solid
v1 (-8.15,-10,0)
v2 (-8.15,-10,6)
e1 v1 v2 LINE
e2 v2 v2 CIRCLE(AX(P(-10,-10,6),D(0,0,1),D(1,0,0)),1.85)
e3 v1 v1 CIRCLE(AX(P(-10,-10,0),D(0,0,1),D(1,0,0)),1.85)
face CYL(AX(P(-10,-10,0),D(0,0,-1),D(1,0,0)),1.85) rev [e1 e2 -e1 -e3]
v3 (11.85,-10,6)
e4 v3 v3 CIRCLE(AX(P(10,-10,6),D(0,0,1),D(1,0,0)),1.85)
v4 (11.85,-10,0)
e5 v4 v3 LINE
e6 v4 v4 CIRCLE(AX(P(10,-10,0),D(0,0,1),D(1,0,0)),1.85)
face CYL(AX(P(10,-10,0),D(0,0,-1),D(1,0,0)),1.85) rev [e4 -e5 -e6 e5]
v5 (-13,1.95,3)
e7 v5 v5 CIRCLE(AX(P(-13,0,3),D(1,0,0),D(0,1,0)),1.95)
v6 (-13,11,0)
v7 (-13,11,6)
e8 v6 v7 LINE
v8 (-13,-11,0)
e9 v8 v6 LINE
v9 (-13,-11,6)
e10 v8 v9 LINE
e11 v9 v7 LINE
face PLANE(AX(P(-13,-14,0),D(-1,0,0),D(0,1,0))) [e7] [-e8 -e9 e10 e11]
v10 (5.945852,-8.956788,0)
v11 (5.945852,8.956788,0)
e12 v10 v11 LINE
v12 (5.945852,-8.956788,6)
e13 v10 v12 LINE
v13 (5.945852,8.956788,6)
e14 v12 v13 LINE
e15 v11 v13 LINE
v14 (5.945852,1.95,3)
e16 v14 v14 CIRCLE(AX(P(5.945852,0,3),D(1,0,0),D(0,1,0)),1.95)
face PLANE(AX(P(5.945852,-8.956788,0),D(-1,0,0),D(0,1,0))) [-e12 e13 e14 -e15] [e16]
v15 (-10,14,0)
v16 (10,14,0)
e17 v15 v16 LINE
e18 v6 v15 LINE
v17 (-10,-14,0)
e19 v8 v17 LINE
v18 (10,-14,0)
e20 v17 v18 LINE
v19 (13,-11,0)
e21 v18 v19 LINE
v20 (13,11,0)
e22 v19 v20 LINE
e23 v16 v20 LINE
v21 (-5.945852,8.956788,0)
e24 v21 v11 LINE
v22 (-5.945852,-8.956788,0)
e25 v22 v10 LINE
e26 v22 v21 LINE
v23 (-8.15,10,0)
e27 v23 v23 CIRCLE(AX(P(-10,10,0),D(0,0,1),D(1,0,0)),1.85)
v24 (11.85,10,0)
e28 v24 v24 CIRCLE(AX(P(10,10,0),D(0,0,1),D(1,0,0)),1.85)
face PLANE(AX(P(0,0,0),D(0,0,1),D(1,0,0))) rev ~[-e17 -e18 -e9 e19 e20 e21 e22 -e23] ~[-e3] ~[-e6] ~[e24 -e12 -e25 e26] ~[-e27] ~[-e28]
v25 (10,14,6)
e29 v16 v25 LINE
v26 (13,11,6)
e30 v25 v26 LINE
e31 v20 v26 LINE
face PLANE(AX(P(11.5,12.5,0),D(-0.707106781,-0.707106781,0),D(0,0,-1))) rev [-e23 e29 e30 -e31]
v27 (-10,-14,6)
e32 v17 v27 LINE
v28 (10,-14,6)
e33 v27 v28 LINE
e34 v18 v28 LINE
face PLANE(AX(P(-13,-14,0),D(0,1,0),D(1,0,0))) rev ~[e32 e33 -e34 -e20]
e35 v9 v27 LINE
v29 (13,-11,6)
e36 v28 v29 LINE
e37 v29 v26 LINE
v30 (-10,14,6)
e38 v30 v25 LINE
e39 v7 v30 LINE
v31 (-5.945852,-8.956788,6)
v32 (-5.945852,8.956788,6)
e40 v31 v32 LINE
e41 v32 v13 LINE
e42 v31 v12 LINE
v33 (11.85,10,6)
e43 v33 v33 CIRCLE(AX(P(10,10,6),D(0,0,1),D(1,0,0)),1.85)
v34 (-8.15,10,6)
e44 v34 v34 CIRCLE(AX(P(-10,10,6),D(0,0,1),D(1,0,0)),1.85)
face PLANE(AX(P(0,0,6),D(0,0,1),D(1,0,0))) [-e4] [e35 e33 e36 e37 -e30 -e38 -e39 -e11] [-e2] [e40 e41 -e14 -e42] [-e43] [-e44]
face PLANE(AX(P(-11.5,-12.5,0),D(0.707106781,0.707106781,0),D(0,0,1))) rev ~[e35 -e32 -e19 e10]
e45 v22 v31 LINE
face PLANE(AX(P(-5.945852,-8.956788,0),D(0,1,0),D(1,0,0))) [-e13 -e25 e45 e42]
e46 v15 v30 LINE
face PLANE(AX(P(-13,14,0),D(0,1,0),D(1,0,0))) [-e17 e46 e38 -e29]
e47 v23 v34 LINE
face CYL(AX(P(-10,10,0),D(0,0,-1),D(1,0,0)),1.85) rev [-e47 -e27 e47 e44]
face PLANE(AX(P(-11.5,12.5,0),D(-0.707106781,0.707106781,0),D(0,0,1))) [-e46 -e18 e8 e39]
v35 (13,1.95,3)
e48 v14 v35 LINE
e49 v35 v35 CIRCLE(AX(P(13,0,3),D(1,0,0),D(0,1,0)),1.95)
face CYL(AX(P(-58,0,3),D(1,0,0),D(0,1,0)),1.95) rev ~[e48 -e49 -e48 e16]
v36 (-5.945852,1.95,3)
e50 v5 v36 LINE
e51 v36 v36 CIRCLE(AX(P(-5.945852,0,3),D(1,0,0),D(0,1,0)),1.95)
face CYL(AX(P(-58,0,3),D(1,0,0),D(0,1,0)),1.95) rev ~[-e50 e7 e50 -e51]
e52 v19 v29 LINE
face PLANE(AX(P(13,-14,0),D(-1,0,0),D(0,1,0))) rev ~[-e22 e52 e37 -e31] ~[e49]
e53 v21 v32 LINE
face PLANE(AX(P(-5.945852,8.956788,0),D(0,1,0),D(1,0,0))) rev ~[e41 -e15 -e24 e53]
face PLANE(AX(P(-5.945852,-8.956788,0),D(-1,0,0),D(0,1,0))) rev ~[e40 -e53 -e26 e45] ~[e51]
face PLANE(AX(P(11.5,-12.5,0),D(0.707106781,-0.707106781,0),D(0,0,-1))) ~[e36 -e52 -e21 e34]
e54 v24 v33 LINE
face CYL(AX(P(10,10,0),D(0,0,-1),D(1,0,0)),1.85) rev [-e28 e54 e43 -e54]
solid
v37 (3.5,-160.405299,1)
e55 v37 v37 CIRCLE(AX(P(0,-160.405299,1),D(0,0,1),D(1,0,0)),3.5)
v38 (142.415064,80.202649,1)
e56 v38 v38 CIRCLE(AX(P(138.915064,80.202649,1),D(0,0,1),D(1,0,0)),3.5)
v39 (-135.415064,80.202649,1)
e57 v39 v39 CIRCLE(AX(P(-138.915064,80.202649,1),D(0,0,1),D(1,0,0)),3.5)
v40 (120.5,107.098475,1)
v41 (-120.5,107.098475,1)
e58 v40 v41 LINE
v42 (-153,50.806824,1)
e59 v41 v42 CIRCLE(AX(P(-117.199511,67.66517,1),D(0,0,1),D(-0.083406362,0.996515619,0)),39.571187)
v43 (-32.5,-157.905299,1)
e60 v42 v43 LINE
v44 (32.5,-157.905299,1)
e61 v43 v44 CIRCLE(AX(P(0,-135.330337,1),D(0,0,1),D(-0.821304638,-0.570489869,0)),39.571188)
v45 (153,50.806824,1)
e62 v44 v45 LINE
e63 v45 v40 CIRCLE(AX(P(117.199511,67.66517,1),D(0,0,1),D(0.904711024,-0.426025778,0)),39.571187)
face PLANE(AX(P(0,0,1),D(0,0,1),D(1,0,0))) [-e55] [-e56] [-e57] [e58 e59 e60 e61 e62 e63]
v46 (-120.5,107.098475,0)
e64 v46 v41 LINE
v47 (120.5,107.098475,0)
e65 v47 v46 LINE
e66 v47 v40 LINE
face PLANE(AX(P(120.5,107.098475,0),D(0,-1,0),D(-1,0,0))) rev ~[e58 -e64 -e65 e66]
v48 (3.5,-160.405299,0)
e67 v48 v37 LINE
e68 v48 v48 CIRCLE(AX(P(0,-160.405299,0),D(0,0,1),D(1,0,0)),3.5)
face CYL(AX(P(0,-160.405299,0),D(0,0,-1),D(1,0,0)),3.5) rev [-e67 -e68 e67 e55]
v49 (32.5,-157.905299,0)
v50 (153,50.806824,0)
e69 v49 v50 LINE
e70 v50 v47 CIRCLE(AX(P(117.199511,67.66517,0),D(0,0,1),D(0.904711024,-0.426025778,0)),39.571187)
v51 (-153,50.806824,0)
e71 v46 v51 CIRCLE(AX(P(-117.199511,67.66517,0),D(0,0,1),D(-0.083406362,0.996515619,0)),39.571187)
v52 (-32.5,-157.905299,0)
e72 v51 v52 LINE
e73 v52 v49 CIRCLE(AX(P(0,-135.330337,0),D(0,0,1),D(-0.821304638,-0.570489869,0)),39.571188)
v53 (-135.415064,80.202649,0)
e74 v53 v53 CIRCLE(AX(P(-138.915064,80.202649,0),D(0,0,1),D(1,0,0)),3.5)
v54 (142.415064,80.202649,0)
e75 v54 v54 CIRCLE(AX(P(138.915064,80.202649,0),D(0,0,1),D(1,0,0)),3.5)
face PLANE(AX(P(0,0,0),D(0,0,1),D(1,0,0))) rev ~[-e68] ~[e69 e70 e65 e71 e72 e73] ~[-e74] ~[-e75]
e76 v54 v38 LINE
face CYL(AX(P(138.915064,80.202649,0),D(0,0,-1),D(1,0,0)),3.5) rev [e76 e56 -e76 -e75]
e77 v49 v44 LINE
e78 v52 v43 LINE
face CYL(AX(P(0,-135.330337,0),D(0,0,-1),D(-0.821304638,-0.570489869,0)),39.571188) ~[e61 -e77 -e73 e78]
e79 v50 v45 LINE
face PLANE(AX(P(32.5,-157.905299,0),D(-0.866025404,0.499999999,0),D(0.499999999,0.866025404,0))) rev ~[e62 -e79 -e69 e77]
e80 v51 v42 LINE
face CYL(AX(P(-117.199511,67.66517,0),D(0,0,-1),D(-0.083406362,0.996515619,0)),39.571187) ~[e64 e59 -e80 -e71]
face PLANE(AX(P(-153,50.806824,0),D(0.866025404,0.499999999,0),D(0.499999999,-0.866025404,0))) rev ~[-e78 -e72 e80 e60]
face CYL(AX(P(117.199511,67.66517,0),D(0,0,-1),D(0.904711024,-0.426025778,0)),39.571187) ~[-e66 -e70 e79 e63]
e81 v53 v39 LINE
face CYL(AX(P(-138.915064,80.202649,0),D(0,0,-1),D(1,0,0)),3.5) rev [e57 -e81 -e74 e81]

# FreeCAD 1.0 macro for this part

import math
import FreeCAD as App
import Part
import Sketcher
Q = App.Units.Quantity


def edges_at(feature, points):
    """Names of the edges that pass closest to the given points."""
    edges = feature.Shape.Edges
    near = lambda p: min(range(len(edges)), key=lambda i: edges[i].distToShape(Part.Vertex(*p))[0])
    return sorted({f"Edge{near(p) + 1}" for p in points})


def add_polygon(sketch, points):
    """Adds a closed chain of lines whose ends are joined by coincident constraints."""
    first, n = sketch.GeometryCount, len(points)
    for a, b in zip(points, points[1:] + points[:1]):
        sketch.addGeometry(Part.LineSegment(App.Vector(*a, 0), App.Vector(*b, 0)), False)
    for i in range(n):
        sketch.addConstraint(Sketcher.Constraint("Coincident", first + i, 2, first + (i + 1) % n, 1))

doc = App.newDocument("Part")
body = doc.addObject("PartDesign::Body", "Body")

# Sketch on XY plane
sketch1 = body.newObject("Sketcher::SketchObject", "Sketch")
sketch1.AttachmentSupport = (doc.getObject("XY_Plane"), [""])
sketch1.MapMode = "FlatFace"
sketch1.addGeometry(Part.LineSegment(App.Vector(120.5, 107.098475, 0), App.Vector(-120.5, 107.098475, 0)), False)
sketch1.addGeometry(Part.ArcOfCircle(Part.Circle(App.Vector(-117.199511, 67.66517, 0), App.Vector(0, 0, 1), 39.571187), math.radians(94.784391), math.radians(205.215609)), False)
sketch1.addGeometry(Part.LineSegment(App.Vector(-153, 50.806824, 0), App.Vector(-32.5, -157.905299, 0)), False)
sketch1.addGeometry(Part.ArcOfCircle(Part.Circle(App.Vector(0, -135.330337, 0), App.Vector(0, 0, 1), 39.571188), math.radians(-145.215607), math.radians(-34.784393)), False)
sketch1.addGeometry(Part.LineSegment(App.Vector(32.5, -157.905299, 0), App.Vector(153, 50.806824, 0)), False)
sketch1.addGeometry(Part.ArcOfCircle(Part.Circle(App.Vector(117.199511, 67.66517, 0), App.Vector(0, 0, 1), 39.571187), math.radians(-25.215609), math.radians(85.215609)), False)
sketch1.addGeometry(Part.Circle(App.Vector(0, -160.405299, 0), App.Vector(0, 0, 1), 3.5), False)
sketch1.addGeometry(Part.Circle(App.Vector(-138.915064, 80.202649, 0), App.Vector(0, 0, 1), 3.5), False)
sketch1.addGeometry(Part.Circle(App.Vector(138.915064, 80.202649, 0), App.Vector(0, 0, 1), 3.5), False)
sketch1.addConstraint(Sketcher.Constraint("Coincident", 0, 2, 1, 1))
sketch1.addConstraint(Sketcher.Constraint("Coincident", 1, 2, 2, 1))
sketch1.addConstraint(Sketcher.Constraint("Coincident", 2, 2, 3, 1))
sketch1.addConstraint(Sketcher.Constraint("Coincident", 3, 2, 4, 1))
sketch1.addConstraint(Sketcher.Constraint("Coincident", 4, 2, 5, 1))
sketch1.addConstraint(Sketcher.Constraint("Coincident", 5, 2, 0, 1))
sketch1.addConstraint(Sketcher.Constraint("Horizontal", 0))
sketch1.addConstraint(Sketcher.Constraint("Equal", 1, 3))
sketch1.addConstraint(Sketcher.Constraint("Equal", 3, 5))
sketch1.addConstraint(Sketcher.Constraint("Equal", 6, 7))
sketch1.addConstraint(Sketcher.Constraint("Equal", 7, 8))
sketch1.addConstraint(Sketcher.Constraint("Symmetric", 1, 3, 5, 3, -2))
sketch1.addConstraint(Sketcher.Constraint("Symmetric", 7, 3, 8, 3, -2))
sketch1.addConstraint(Sketcher.Constraint("Symmetric", 2, 2, 3, 2, -2))
sketch1.addConstraint(Sketcher.Constraint("PointOnObject", 6, 3, -2))
sketch1.addConstraint(Sketcher.Constraint("Horizontal", 1, 2, 4, 2))
sketch1.addConstraint(Sketcher.Constraint("Diameter", 6, Q("7 mm")))
sketch1.addConstraint(Sketcher.Constraint("DistanceX", 0, 2, 0, 1, Q("241 mm")))
sketch1.addConstraint(Sketcher.Constraint("Angle", 2, Q("-60 deg")))
sketch1.addConstraint(Sketcher.Constraint("Distance", 2, Q("241.000001 mm")))
sketch1.addConstraint(Sketcher.Constraint("DistanceX", 1, 2, -1, 1, Q("153 mm")))
sketch1.addConstraint(Sketcher.Constraint("DistanceY", 6, 3, 2, 2, Q("2.5 mm")))
sketch1.addConstraint(Sketcher.Constraint("Radius", 1, Q("39.571187 mm")))
sketch1.addConstraint(Sketcher.Constraint("DistanceY", 6, 3, -1, 1, Q("160.405299 mm")))
sketch1.addConstraint(Sketcher.Constraint("DistanceX", 1, 3, -1, 1, Q("117.199511 mm")))
sketch1.addConstraint(Sketcher.Constraint("DistanceY", -1, 1, 7, 3, Q("80.202649 mm")))
sketch1.addConstraint(Sketcher.Constraint("DistanceX", 7, 3, 8, 3, Q("277.830128 mm")))
pad1 = body.newObject("PartDesign::Pad", "Pad")
pad1.Profile = sketch1
pad1.Length = 1
body2 = doc.addObject("PartDesign::Body", "Body001")

# Sketch on XY plane
sketch2 = body2.newObject("Sketcher::SketchObject", "Sketch001")
sketch2.AttachmentSupport = (doc.getObject("XY_Plane001"), [""])
sketch2.MapMode = "FlatFace"
add_polygon(sketch2, [(-13, 14), (-13, -14), (13, -14), (13, 14)])  # lines 0-3
sketch2.addGeometry(Part.Circle(App.Vector(-10, -10, 0), App.Vector(0, 0, 1), 1.85), False)  # 4
add_polygon(sketch2, [(5.945852, -8.956788), (-5.945852, -8.956788), (-5.945852, 8.956788), (5.945852, 8.956788)])  # lines 5-8
sketch2.addGeometry(Part.Circle(App.Vector(10, -10, 0), App.Vector(0, 0, 1), 1.85), False)  # 9
sketch2.addGeometry(Part.Circle(App.Vector(-10, 10, 0), App.Vector(0, 0, 1), 1.85), False)  # 10
sketch2.addGeometry(Part.Circle(App.Vector(10, 10, 0), App.Vector(0, 0, 1), 1.85), False)  # 11
sketch2.addConstraint(Sketcher.Constraint("Vertical", 0))
sketch2.addConstraint(Sketcher.Constraint("Horizontal", 1))
sketch2.addConstraint(Sketcher.Constraint("Vertical", 2))
sketch2.addConstraint(Sketcher.Constraint("Horizontal", 3))
sketch2.addConstraint(Sketcher.Constraint("Horizontal", 5))
sketch2.addConstraint(Sketcher.Constraint("Vertical", 6))
sketch2.addConstraint(Sketcher.Constraint("Horizontal", 7))
sketch2.addConstraint(Sketcher.Constraint("Vertical", 8))
sketch2.addConstraint(Sketcher.Constraint("Equal", 4, 9))
sketch2.addConstraint(Sketcher.Constraint("Equal", 9, 10))
sketch2.addConstraint(Sketcher.Constraint("Equal", 10, 11))
sketch2.addConstraint(Sketcher.Constraint("Symmetric", 9, 3, 10, 3, -1, 1))
sketch2.addConstraint(Sketcher.Constraint("Symmetric", 4, 3, 11, 3, -1, 1))
sketch2.addConstraint(Sketcher.Constraint("Symmetric", 0, 2, 2, 2, -1, 1))
sketch2.addConstraint(Sketcher.Constraint("Symmetric", 5, 2, 7, 2, -1, 1))
sketch2.addConstraint(Sketcher.Constraint("Symmetric", 4, 3, 9, 3, -2))
sketch2.addConstraint(Sketcher.Constraint("Diameter", 4, Q("3.7 mm")))
sketch2.addConstraint(Sketcher.Constraint("DistanceX", 1, 1, 1, 2, Q("26 mm")))
sketch2.addConstraint(Sketcher.Constraint("DistanceY", 0, 2, 0, 1, Q("28 mm")))
sketch2.addConstraint(Sketcher.Constraint("DistanceX", 4, 3, -1, 1, Q("10 mm")))
sketch2.addConstraint(Sketcher.Constraint("DistanceY", 4, 3, -1, 1, Q("10 mm")))
sketch2.addConstraint(Sketcher.Constraint("DistanceX", 5, 2, 5, 1, Q("11.891704 mm")))
sketch2.addConstraint(Sketcher.Constraint("DistanceY", 6, 1, 6, 2, Q("17.913576 mm")))
pad2 = body2.newObject("PartDesign::Pad", "Pad001")
pad2.Profile = sketch2
pad2.Length = 6

# Sketch on YZ plane
sketch3 = body2.newObject("Sketcher::SketchObject", "Sketch002")
sketch3.AttachmentSupport = (doc.getObject("YZ_Plane001"), [""])
sketch3.MapMode = "FlatFace"
sketch3.AttachmentOffset = App.Placement(App.Vector(0, 0, -13), App.Rotation())
sketch3.addGeometry(Part.Circle(App.Vector(0, 3, 0), App.Vector(0, 0, 1), 1.95), False)
sketch3.addConstraint(Sketcher.Constraint("PointOnObject", 0, 3, -2))
sketch3.addConstraint(Sketcher.Constraint("Diameter", 0, Q("3.9 mm")))
sketch3.addConstraint(Sketcher.Constraint("DistanceY", -1, 1, 0, 3, Q("3 mm")))
doc.recompute()
hole = body2.newObject("PartDesign::Hole", "Hole")
hole.Profile = sketch3
hole.ThreadType = "None"
hole.Diameter = 3.9
hole.DepthType = "Dimension"
hole.Depth = 45
hole.DrillPoint = "Flat"
hole.Reversed = True
doc.recompute()

chamfer = body2.newObject("PartDesign::Chamfer", "Chamfer")
chamfer.Base = (hole, edges_at(hole, [
    (-13, 14, 3),
    (13, 14, 3),
    (-13, -14, 3),
    (13, -14, 3),
]))
chamfer.Size = 3

doc.recompute()
